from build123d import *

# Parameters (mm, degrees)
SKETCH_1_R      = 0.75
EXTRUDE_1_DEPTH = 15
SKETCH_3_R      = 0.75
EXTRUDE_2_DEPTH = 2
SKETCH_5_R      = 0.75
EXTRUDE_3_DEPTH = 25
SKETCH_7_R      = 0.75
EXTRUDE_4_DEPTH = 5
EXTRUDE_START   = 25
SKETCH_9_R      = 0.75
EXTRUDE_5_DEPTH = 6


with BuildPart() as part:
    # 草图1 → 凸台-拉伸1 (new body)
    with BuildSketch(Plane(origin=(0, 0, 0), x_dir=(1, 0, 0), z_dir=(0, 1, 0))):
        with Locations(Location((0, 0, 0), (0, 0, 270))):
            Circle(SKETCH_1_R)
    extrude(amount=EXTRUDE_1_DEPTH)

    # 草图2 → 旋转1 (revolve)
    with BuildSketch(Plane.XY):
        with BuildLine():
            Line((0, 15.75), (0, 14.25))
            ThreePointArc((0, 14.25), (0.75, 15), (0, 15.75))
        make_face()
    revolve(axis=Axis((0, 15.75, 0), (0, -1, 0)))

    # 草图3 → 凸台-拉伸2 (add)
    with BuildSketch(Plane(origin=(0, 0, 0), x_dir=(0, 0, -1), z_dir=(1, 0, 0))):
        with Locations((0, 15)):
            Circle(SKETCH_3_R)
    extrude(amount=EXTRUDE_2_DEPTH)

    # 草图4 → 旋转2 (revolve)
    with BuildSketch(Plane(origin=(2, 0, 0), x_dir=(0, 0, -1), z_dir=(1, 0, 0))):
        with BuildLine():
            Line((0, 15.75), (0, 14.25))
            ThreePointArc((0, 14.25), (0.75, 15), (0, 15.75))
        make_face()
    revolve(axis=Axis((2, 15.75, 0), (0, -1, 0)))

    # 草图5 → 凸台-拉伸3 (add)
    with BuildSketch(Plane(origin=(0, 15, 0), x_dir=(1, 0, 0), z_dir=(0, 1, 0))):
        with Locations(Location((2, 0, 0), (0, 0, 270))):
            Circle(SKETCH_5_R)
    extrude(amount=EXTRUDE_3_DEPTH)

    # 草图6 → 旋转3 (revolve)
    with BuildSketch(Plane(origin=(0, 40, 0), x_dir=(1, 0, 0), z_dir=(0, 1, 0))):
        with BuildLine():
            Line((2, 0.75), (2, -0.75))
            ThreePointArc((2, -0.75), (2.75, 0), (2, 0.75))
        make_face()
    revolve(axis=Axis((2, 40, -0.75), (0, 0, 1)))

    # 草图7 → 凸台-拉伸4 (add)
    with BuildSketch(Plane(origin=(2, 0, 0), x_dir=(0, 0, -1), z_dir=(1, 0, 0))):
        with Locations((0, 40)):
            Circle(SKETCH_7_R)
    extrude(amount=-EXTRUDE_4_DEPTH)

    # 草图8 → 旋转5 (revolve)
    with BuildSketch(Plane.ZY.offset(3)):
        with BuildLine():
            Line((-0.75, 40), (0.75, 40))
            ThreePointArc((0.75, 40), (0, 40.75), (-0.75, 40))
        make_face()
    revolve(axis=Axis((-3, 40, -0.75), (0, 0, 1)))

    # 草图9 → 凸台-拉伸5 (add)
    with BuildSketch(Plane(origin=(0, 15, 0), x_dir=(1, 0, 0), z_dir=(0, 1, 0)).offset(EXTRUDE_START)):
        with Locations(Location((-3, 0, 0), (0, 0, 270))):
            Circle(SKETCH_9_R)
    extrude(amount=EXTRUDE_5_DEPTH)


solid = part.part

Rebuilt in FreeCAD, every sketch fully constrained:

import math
import FreeCAD as App
import Part
import Sketcher

V = App.Vector

doc = App.newDocument("Part")
body = doc.addObject("PartDesign::Body", "Body")

sketch1 = body.newObject("Sketcher::SketchObject", "Sketch")
sketch1.AttachmentSupport = (doc.getObject("XZ_Plane"), [""])
sketch1.MapMode = "FlatFace"
sketch1.addGeometry(Part.Circle(V(0, 0, 0), V(0, 0, 1), 0.8), False)
sketch1.addConstraint([
    Sketcher.Constraint("Coincident", 0, 3, -1, 1),
    Sketcher.Constraint("Diameter", 0, 1.5),
])
pad1 = body.newObject("PartDesign::Pad", "Pad")
pad1.Profile = sketch1
pad1.Length = 15
pad1.Reversed = True

sketch2 = body.newObject("Sketcher::SketchObject", "Sketch001")
sketch2.AttachmentSupport = (doc.getObject("XY_Plane"), [""])
sketch2.MapMode = "FlatFace"
sketch2.addGeometry([
    Part.LineSegment(V(0, 15.8, 0), V(0, 14.2, 0)),
    Part.ArcOfCircle(Part.Circle(V(0, 15, 0), V(0, 0, 1), 0.8), math.radians(-90), math.radians(90)),
], False)
sketch2.addConstraint([
    Sketcher.Constraint("Coincident", 0, 1, 1, 2),
    Sketcher.Constraint("Coincident", 1, 1, 0, 2),
    Sketcher.Constraint("Vertical", 0),
    Sketcher.Constraint("PointOnObject", 1, 3, -2),
    Sketcher.Constraint("PointOnObject", 0, 1, -2),
    Sketcher.Constraint("Radius", 1, 0.75),
    Sketcher.Constraint("DistanceY", -1, 1, 1, 3, 15.0),
])
revolution = body.newObject("PartDesign::Revolution", "Revolution")
revolution.Profile = sketch2
revolution.ReferenceAxis = (sketch2, ["V_Axis"])
revolution.Angle = 360

sketch3 = body.newObject("Sketcher::SketchObject", "Sketch002")
sketch3.AttachmentSupport = (doc.getObject("YZ_Plane"), [""])
sketch3.MapMode = "FlatFace"
sketch3.addGeometry(Part.Circle(V(15, 0, 0), V(0, 0, 1), 0.8), False)
sketch3.addConstraint([
    Sketcher.Constraint("PointOnObject", 0, 3, -1),
    Sketcher.Constraint("Diameter", 0, 1.5),
    Sketcher.Constraint("DistanceX", -1, 1, 0, 3, 15.0),
])
pad2 = body.newObject("PartDesign::Pad", "Pad001")
pad2.Profile = sketch3
pad2.Length = 2

sketch4 = body.newObject("Sketcher::SketchObject", "Sketch003")
sketch4.AttachmentSupport = (doc.getObject("YZ_Plane"), [""])
sketch4.MapMode = "FlatFace"
sketch4.AttachmentOffset = App.Placement(V(0, 0, 2), App.Rotation())
sketch4.addGeometry([
    Part.LineSegment(V(15.8, 0, 0), V(14.2, 0, 0)),
    Part.ArcOfCircle(Part.Circle(V(15, 0, 0), V(0, 0, 1), 0.8), math.radians(180), math.radians(360)),
], False)
sketch4.addConstraint([
    Sketcher.Constraint("Coincident", 0, 1, 1, 2),
    Sketcher.Constraint("Coincident", 1, 1, 0, 2),
    Sketcher.Constraint("Horizontal", 0),
    Sketcher.Constraint("PointOnObject", 1, 3, -1),
    Sketcher.Constraint("PointOnObject", 0, 1, -1),
    Sketcher.Constraint("Radius", 1, 0.75),
    Sketcher.Constraint("DistanceX", -1, 1, 1, 3, 15.0),
])
revolution2 = body.newObject("PartDesign::Revolution", "Revolution001")
revolution2.Profile = sketch4
revolution2.ReferenceAxis = (sketch4, ["H_Axis"])
revolution2.Angle = 360

sketch5 = body.newObject("Sketcher::SketchObject", "Sketch004")
sketch5.AttachmentSupport = (doc.getObject("XZ_Plane"), [""])
sketch5.MapMode = "FlatFace"
sketch5.AttachmentOffset = App.Placement(V(0, 0, -15), App.Rotation())
sketch5.addGeometry(Part.Circle(V(2, 0, 0), V(0, 0, 1), 0.8), False)
sketch5.addConstraint([
    Sketcher.Constraint("PointOnObject", 0, 3, -1),
    Sketcher.Constraint("Diameter", 0, 1.5),
    Sketcher.Constraint("DistanceX", -1, 1, 0, 3, 2.0),
])
pad3 = body.newObject("PartDesign::Pad", "Pad002")
pad3.Profile = sketch5
pad3.Length = 25
pad3.Reversed = True

sketch6 = body.newObject("Sketcher::SketchObject", "Sketch005")
sketch6.AttachmentSupport = (doc.getObject("XZ_Plane"), [""])
sketch6.MapMode = "FlatFace"
sketch6.AttachmentOffset = App.Placement(V(0, 0, -40), App.Rotation())
sketch6.addGeometry([
    Part.LineSegment(V(2, -0.8, 0), V(2, 0.8, 0)),
    Part.ArcOfCircle(Part.Circle(V(2, 0, 0), V(0, 0, 1), 0.8), math.radians(-90), math.radians(90)),
], False)
sketch6.addGeometry(Part.LineSegment(V(2, -0.8, 0), V(2, 0.8, 0)), True)
sketch6.addConstraint([
    Sketcher.Constraint("Coincident", 0, 1, 1, 1),
    Sketcher.Constraint("Coincident", 1, 2, 0, 2),
    Sketcher.Constraint("Vertical", 0),
    Sketcher.Constraint("Vertical", 2),
    Sketcher.Constraint("Coincident", 2, 1, 0, 1),
    Sketcher.Constraint("PointOnObject", 1, 3, -1),
    Sketcher.Constraint("Vertical", 1, 3, 0, 1),
    Sketcher.Constraint("Equal", 0, 2),
    Sketcher.Constraint("Radius", 1, 0.75),
    Sketcher.Constraint("DistanceX", -1, 1, 1, 3, 2.0),
])
revolution3 = body.newObject("PartDesign::Revolution", "Revolution002")
revolution3.Profile = sketch6
revolution3.ReferenceAxis = (sketch6, ["Axis0"])
revolution3.Angle = 360

sketch7 = body.newObject("Sketcher::SketchObject", "Sketch006")
sketch7.AttachmentSupport = (doc.getObject("YZ_Plane"), [""])
sketch7.MapMode = "FlatFace"
sketch7.AttachmentOffset = App.Placement(V(0, 0, 2), App.Rotation())
sketch7.addGeometry(Part.Circle(V(40, 0, 0), V(0, 0, 1), 0.8), False)
sketch7.addConstraint([
    Sketcher.Constraint("PointOnObject", 0, 3, -1),
    Sketcher.Constraint("Diameter", 0, 1.5),
    Sketcher.Constraint("DistanceX", -1, 1, 0, 3, 40.0),
])
pad4 = body.newObject("PartDesign::Pad", "Pad003")
pad4.Profile = sketch7
pad4.Length = 5
pad4.Reversed = True

sketch8 = body.newObject("Sketcher::SketchObject", "Sketch007")
sketch8.AttachmentSupport = (doc.getObject("YZ_Plane"), [""])
sketch8.MapMode = "FlatFace"
sketch8.AttachmentOffset = App.Placement(V(0, 0, -3), App.Rotation())
sketch8.addGeometry([
    Part.LineSegment(V(40, -0.8, 0), V(40, 0.8, 0)),
    Part.ArcOfCircle(Part.Circle(V(40, 0, 0), V(0, 0, 1), 0.8), math.radians(-90), math.radians(90)),
], False)
sketch8.addGeometry(Part.LineSegment(V(40, -0.8, 0), V(40, 0.8, 0)), True)
sketch8.addConstraint([
    Sketcher.Constraint("Coincident", 0, 1, 1, 1),
    Sketcher.Constraint("Coincident", 1, 2, 0, 2),
    Sketcher.Constraint("Vertical", 0),
    Sketcher.Constraint("Vertical", 2),
    Sketcher.Constraint("Coincident", 2, 1, 0, 1),
    Sketcher.Constraint("PointOnObject", 1, 3, -1),
    Sketcher.Constraint("Vertical", 1, 3, 0, 1),
    Sketcher.Constraint("Equal", 0, 2),
    Sketcher.Constraint("Radius", 1, 0.75),
    Sketcher.Constraint("DistanceX", -1, 1, 1, 3, 40.0),
])
revolution4 = body.newObject("PartDesign::Revolution", "Revolution003")
revolution4.Profile = sketch8
revolution4.ReferenceAxis = (sketch8, ["Axis0"])
revolution4.Angle = 360

sketch9 = body.newObject("Sketcher::SketchObject", "Sketch008")
sketch9.AttachmentSupport = (doc.getObject("XZ_Plane"), [""])
sketch9.MapMode = "FlatFace"
sketch9.AttachmentOffset = App.Placement(V(0, 0, -40), App.Rotation())
sketch9.addGeometry(Part.Circle(V(-3, 0, 0), V(0, 0, 1), 0.8), False)
sketch9.addConstraint([
    Sketcher.Constraint("PointOnObject", 0, 3, -1),
    Sketcher.Constraint("Diameter", 0, 1.5),
    Sketcher.Constraint("DistanceX", 0, 3, -1, 1, 3.0),
])
pad5 = body.newObject("PartDesign::Pad", "Pad004")
pad5.Profile = sketch9
pad5.Length = 6
pad5.Reversed = True

doc.recompute()
